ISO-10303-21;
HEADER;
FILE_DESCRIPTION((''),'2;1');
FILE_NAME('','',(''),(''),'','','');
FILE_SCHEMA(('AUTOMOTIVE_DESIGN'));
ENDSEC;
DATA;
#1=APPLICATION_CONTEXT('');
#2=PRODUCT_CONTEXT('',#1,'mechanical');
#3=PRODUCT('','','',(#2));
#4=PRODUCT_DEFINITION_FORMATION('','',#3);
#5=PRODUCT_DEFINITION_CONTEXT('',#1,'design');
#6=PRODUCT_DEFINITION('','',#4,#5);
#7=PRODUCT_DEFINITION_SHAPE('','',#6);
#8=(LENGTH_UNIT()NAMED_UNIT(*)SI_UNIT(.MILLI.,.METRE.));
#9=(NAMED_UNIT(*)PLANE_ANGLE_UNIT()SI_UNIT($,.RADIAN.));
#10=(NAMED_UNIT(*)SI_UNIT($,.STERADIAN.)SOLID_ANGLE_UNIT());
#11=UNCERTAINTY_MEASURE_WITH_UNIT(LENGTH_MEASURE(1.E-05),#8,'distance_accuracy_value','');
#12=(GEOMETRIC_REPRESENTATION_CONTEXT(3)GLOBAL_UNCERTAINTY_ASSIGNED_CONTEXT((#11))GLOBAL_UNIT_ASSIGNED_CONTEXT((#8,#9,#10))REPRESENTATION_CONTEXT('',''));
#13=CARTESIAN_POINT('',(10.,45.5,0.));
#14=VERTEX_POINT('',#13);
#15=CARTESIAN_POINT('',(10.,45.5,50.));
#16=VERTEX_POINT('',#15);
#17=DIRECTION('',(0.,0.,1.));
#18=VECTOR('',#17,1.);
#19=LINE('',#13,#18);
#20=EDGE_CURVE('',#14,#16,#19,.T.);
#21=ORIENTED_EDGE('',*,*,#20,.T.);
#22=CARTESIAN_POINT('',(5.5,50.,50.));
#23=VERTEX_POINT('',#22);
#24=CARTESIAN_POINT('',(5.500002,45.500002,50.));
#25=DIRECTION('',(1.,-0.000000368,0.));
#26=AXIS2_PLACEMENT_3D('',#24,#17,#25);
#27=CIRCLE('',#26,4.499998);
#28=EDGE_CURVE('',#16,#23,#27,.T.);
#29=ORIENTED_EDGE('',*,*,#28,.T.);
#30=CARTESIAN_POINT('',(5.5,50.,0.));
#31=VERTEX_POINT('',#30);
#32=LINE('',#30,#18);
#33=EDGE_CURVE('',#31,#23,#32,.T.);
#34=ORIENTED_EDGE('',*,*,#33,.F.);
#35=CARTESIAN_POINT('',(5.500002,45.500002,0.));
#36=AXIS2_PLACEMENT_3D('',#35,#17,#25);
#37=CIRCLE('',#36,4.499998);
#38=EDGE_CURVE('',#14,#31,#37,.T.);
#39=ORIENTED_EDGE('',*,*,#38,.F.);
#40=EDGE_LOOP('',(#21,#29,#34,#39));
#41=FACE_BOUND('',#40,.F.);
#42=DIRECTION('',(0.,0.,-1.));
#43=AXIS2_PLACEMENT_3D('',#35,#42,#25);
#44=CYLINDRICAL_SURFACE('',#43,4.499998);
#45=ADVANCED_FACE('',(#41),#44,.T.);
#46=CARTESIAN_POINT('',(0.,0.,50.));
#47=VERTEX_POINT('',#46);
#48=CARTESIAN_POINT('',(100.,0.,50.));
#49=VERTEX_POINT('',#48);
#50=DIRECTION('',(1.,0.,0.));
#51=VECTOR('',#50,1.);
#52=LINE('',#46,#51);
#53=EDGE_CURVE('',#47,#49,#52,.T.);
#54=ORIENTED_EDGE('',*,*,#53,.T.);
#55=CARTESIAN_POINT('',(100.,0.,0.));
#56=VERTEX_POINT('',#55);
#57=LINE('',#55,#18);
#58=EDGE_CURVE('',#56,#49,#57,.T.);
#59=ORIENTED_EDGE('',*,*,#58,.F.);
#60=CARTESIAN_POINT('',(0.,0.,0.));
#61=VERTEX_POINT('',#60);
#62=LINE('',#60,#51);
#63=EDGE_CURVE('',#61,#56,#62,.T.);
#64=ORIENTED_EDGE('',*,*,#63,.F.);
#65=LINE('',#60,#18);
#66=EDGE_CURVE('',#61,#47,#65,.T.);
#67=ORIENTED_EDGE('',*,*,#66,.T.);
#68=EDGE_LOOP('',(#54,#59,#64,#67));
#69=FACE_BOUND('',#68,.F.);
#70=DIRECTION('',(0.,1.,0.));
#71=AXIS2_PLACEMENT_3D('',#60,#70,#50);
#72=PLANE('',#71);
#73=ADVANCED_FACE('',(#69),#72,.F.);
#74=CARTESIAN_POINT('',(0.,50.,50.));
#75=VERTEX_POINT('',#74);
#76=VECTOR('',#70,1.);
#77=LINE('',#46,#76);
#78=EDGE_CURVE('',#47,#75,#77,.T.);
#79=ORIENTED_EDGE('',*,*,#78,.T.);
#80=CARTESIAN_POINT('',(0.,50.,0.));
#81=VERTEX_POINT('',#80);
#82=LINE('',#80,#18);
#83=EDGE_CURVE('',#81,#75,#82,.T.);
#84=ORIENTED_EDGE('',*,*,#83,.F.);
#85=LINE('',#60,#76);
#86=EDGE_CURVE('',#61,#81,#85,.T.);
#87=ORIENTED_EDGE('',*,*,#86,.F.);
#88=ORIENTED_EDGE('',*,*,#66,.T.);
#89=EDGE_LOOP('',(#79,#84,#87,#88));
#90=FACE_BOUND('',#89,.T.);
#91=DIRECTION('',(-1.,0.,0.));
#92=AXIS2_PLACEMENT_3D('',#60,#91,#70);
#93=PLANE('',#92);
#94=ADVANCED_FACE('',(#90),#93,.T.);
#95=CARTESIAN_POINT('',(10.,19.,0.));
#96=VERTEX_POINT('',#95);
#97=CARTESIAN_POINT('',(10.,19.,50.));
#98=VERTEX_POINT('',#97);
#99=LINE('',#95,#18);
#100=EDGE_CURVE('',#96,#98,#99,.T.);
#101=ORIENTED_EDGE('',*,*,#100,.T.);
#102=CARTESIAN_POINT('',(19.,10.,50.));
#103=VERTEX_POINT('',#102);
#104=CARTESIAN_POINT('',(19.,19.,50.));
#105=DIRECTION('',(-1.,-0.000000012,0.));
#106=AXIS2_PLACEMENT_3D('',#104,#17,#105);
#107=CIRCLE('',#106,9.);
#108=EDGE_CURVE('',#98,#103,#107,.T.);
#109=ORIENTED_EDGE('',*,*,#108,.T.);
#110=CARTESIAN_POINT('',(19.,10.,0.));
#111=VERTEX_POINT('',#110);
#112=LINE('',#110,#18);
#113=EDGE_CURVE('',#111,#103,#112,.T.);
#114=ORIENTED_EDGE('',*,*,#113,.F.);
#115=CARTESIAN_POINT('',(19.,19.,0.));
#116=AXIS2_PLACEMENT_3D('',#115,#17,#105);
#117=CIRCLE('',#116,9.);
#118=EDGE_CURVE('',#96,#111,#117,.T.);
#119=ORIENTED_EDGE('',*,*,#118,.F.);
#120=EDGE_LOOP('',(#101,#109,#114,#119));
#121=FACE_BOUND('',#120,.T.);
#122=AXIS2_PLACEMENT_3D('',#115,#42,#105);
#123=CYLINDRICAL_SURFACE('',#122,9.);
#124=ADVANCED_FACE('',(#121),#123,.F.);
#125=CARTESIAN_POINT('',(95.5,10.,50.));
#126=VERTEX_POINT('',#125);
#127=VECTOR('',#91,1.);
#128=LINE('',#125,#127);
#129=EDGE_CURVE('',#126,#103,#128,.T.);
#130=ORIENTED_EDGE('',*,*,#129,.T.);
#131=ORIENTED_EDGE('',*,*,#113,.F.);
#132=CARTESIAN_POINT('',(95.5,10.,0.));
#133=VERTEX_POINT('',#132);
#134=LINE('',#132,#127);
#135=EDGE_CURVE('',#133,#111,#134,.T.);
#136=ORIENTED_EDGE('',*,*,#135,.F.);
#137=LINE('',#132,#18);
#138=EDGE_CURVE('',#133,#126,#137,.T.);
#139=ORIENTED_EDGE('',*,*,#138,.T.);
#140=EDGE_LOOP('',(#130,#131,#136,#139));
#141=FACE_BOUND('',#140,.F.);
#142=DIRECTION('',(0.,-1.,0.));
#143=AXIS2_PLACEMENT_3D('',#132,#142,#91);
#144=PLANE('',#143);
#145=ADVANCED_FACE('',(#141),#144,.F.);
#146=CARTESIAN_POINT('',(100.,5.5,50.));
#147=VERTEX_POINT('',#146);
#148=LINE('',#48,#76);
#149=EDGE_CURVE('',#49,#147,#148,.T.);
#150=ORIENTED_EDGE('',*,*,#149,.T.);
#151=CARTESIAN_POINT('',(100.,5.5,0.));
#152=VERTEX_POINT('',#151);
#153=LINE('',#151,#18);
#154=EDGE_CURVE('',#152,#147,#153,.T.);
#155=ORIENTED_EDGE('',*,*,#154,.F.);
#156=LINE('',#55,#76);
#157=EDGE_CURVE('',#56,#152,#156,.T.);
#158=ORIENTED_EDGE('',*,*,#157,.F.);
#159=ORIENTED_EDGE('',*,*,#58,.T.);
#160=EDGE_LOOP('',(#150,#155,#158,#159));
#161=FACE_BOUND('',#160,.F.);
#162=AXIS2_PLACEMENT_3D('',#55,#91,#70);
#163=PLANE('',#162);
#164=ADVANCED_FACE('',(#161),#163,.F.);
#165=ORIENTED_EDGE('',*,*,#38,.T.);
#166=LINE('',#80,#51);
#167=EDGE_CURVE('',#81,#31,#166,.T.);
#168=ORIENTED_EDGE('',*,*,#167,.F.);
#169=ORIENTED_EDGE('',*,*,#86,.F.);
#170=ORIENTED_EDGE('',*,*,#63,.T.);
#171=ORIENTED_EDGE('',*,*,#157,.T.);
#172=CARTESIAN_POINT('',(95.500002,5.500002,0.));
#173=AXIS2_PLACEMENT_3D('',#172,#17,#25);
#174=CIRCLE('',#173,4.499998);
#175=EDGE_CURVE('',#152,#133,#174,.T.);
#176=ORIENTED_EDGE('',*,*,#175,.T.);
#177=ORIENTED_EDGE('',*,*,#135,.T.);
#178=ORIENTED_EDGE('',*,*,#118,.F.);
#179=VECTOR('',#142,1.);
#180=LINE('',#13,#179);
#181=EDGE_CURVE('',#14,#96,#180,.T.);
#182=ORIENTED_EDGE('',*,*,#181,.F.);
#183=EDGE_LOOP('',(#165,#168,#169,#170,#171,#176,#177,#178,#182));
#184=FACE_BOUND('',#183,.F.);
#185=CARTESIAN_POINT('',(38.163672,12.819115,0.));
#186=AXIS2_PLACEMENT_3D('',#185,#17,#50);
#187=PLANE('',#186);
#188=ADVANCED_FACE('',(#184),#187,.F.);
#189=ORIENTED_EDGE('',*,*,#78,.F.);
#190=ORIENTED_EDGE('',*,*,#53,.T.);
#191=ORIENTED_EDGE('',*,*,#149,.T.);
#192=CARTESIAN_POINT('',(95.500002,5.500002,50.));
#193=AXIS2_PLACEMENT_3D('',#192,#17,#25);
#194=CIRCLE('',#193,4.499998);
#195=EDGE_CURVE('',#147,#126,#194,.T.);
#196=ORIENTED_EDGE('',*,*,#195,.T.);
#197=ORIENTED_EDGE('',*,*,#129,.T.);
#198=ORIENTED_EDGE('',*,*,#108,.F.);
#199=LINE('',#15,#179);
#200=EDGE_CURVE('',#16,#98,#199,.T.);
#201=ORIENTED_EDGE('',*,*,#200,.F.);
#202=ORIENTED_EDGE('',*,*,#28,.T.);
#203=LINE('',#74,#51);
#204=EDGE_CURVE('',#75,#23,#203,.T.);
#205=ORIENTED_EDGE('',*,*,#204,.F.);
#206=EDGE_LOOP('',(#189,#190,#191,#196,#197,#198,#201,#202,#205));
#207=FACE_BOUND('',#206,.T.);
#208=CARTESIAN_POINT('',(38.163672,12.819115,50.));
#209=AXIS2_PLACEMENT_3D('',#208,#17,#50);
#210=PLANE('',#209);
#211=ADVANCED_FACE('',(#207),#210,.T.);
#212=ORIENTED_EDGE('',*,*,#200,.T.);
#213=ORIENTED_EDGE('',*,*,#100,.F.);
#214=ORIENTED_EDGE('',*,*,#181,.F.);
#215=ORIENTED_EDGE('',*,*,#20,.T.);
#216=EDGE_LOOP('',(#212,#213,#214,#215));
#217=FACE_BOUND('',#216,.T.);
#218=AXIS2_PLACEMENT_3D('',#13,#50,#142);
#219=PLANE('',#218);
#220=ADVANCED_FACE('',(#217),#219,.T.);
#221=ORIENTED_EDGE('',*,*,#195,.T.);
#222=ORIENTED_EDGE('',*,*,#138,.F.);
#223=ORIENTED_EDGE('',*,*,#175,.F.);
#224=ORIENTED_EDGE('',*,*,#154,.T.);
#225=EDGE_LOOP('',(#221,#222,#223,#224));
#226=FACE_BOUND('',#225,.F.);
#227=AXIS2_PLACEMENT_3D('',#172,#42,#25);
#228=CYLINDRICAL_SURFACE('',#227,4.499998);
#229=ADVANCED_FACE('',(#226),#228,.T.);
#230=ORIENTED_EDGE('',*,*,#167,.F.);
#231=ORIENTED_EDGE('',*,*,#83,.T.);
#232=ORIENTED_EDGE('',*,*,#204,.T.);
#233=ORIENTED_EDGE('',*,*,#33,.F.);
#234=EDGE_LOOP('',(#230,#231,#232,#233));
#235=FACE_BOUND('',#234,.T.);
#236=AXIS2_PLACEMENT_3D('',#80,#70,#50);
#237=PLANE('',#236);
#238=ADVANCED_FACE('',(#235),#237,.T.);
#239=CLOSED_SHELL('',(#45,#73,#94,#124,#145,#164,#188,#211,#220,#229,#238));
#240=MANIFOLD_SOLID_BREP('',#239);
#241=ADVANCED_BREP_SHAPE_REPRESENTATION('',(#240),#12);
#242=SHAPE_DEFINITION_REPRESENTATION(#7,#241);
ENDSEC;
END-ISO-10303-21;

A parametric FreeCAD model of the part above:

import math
import FreeCAD as App
import Part
import Sketcher
Q = App.Units.Quantity

doc = App.newDocument("Part")
body = doc.addObject("PartDesign::Body", "Body")

sketch1 = body.newObject("Sketcher::SketchObject", "Sketch")
sketch1.AttachmentSupport = (doc.getObject("XY_Plane"), [""])
sketch1.MapMode = "FlatFace"
sketch1.addGeometry([
    Part.LineSegment(App.Vector(0, 0, 0), App.Vector(100, 0, 0)),
    Part.LineSegment(App.Vector(100, 0, 0), App.Vector(100, 5.5, 0)),
    Part.ArcOfCircle(Part.Circle(App.Vector(95.5, 5.5, 0), App.Vector(0, 0, 1), 4.5), math.radians(0), math.radians(90)),
    Part.LineSegment(App.Vector(95.5, 10, 0), App.Vector(19, 10, 0)),
    Part.ArcOfCircle(Part.Circle(App.Vector(19, 19, 0), App.Vector(0, 0, 1), 9), math.radians(-180), math.radians(-90)),
    Part.LineSegment(App.Vector(10, 19, 0), App.Vector(10, 45.5, 0)),
    Part.ArcOfCircle(Part.Circle(App.Vector(5.5, 45.5, 0), App.Vector(0, 0, 1), 4.5), math.radians(0), math.radians(90)),
    Part.LineSegment(App.Vector(5.5, 50, 0), App.Vector(0, 50, 0)),
    Part.LineSegment(App.Vector(0, 50, 0), App.Vector(0, 0, 0)),
], False)
sketch1.addConstraint([
    Sketcher.Constraint("Coincident", 0, 2, 1, 1),
    Sketcher.Constraint("Tangent", 1, 2, 2, 1),
    Sketcher.Constraint("Tangent", 2, 2, 3, 1),
    Sketcher.Constraint("Tangent", 3, 2, 4, 2),
    Sketcher.Constraint("Tangent", 4, 1, 5, 1),
    Sketcher.Constraint("Tangent", 5, 2, 6, 1),
    Sketcher.Constraint("Tangent", 6, 2, 7, 1),
    Sketcher.Constraint("Coincident", 7, 2, 8, 1),
    Sketcher.Constraint("Coincident", 8, 2, 0, 1),
    Sketcher.Constraint("Horizontal", 0),
    Sketcher.Constraint("Vertical", 1),
    Sketcher.Constraint("Horizontal", 3),
    Sketcher.Constraint("Vertical", 5),
    Sketcher.Constraint("Horizontal", 7),
    Sketcher.Constraint("Vertical", 8),
    Sketcher.Constraint("Coincident", 8, 2, -1, 1),
    Sketcher.Constraint("Equal", 2, 6),
    Sketcher.Constraint("Equal", 7, 1),
    Sketcher.Constraint("Radius", 4, Q("9 mm")),
    Sketcher.Constraint("Radius", 2, Q("4.499998 mm")),
    Sketcher.Constraint("DistanceX", 0, 1, 0, 2, Q("100 mm")),
    Sketcher.Constraint("DistanceY", 8, 2, 8, 1, Q("50 mm")),
    Sketcher.Constraint("DistanceX", 3, 2, 3, 1, Q("76.5 mm")),
])
pad1 = body.newObject("PartDesign::Pad", "Pad")
pad1.Profile = sketch1
pad1.Length = 50

doc.recompute()
